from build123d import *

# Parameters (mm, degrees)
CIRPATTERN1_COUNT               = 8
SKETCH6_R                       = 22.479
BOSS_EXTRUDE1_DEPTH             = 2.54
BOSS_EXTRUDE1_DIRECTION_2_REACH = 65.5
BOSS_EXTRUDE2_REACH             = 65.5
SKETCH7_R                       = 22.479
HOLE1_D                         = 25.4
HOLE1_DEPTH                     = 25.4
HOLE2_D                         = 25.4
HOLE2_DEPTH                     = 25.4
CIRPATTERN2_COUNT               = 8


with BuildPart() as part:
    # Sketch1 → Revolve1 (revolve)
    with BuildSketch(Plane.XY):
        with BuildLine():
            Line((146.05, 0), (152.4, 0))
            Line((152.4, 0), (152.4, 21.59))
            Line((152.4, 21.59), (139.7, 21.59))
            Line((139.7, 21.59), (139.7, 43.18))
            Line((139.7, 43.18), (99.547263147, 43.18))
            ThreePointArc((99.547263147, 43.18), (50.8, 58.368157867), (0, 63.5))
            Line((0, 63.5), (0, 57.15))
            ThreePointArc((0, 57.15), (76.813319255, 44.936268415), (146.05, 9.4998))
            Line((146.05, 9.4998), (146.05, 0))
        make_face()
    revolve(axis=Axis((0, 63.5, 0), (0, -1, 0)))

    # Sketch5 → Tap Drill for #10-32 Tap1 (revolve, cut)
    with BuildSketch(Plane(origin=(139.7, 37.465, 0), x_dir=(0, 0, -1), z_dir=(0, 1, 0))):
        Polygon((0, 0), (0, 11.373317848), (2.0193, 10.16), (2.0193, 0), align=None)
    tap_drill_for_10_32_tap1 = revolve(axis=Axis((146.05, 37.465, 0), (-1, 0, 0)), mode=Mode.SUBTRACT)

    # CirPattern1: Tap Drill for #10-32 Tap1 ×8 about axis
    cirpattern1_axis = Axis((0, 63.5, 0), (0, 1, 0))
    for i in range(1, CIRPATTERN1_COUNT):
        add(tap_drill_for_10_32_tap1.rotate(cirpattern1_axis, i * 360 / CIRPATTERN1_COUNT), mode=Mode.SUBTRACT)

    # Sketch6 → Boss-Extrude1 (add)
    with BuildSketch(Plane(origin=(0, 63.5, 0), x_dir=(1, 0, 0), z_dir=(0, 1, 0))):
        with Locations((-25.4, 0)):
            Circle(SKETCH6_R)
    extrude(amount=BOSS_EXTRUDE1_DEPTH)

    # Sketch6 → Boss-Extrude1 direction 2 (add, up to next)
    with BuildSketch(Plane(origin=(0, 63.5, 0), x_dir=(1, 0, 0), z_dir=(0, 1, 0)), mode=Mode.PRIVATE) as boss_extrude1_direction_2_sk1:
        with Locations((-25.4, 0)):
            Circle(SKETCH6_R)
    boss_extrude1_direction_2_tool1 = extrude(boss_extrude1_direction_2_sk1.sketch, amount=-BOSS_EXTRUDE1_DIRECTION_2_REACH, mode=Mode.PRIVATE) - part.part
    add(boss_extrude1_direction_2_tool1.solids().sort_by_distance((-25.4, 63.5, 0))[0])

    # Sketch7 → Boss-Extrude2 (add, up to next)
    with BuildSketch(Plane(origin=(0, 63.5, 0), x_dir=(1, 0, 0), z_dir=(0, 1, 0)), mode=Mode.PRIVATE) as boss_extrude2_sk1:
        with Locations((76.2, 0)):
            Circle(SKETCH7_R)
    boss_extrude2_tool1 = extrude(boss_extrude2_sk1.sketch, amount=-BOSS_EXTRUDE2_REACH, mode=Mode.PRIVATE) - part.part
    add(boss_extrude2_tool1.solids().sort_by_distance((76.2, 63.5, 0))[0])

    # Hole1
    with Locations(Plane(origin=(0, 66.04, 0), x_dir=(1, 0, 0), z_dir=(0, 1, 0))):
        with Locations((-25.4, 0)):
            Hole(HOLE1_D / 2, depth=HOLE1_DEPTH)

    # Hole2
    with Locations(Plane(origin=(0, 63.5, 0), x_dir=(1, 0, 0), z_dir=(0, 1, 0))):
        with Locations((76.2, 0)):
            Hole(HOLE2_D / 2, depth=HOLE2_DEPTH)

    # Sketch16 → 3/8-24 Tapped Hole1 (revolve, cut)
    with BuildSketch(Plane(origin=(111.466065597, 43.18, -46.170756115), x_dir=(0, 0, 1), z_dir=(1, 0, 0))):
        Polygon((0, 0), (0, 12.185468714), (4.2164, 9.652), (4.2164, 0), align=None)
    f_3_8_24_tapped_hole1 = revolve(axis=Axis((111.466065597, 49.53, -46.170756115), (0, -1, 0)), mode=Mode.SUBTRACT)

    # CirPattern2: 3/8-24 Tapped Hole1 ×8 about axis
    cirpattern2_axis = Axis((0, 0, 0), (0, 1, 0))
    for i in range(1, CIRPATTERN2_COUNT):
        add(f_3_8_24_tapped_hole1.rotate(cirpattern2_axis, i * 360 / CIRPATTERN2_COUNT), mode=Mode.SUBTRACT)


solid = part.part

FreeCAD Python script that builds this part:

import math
import FreeCAD as App
import Part
import Sketcher
Q = App.Units.Quantity

doc = App.newDocument("Part")
params = doc.addObject("Spreadsheet::Sheet", "Params")
for row, (alias, value) in enumerate([
    ("sketch1_radius", "10 in"),
    ("sketch1_radius2", "9.75 in"),
    ("sketch1_width", "0.5 in"),
    ("sketch1_height", "0.85 in"),
    ("revolution_angle", "360 deg"),
    ("sketch2_width", "0.4 in"),
    ("groove_angle", "360 deg"),
    ("sketch3_diameter", "1.77 in"),
    ("pad1_length", "0.1 in"),
    ("sketch4_diameter", "1.77 in"),
    ("sketch5_diameter", "1.77 in"),
    ("sketch6_diameter", "1 in"),
    ("hole_diameter", "1 in"),
    ("hole_depth", "1 in"),
    ("sketch7_diameter", "1 in"),
    ("hole2_diameter", "1 in"),
    ("hole2_depth", "1 in"),
    ("sketch8_width", "0.38 in"),
    ("sketch8_height", "0.166 in"),
    ("groove2_angle", "360 deg"),
], start=1):
    params.set(f"A{row}", alias)
    params.set(f"B{row}", "=" + value)
    params.setAlias(f"B{row}", alias)

body = doc.addObject("PartDesign::Body", "Body")
body.AllowCompound = True

# Sketch on XY plane
sketch1 = doc.addObject("Sketcher::SketchObject", "Sketch")
body.addObject(sketch1)
sketch1.AttachmentSupport = (doc.XY_Plane, [""])
sketch1.MapMode = "FlatFace"
sketch1.addGeometry([
    Part.LineSegment(App.Vector(146, 0, 0), App.Vector(152, 0, 0)),  # 0
    Part.LineSegment(App.Vector(152, 0, 0), App.Vector(152, 22, 0)),  # 1
    Part.LineSegment(App.Vector(152, 22, 0), App.Vector(140, 22, 0)),  # 2
    Part.LineSegment(App.Vector(140, 22, 0), App.Vector(140, 43, 0)),  # 3
    Part.LineSegment(App.Vector(140, 43, 0), App.Vector(100, 43, 0)),  # 4
    Part.ArcOfCircle(Part.Circle(App.Vector(0, -190, 0), App.Vector(0, 0, 1), 254), math.radians(67), math.radians(90)),  # 5
    Part.LineSegment(App.Vector(0, 64, 0), App.Vector(0, 57, 0)),  # 6
    Part.ArcOfCircle(Part.Circle(App.Vector(0, -190, 0), App.Vector(0, 0, 1), 248), math.radians(54), math.radians(90)),  # 7
    Part.LineSegment(App.Vector(146, 9, 0), App.Vector(146, 0, 0)),  # 8
], False)
sketch1.addConstraint([
    Sketcher.Constraint("Coincident", 0, 2, 1, 1),
    Sketcher.Constraint("Coincident", 1, 2, 2, 1),
    Sketcher.Constraint("Coincident", 2, 2, 3, 1),
    Sketcher.Constraint("Coincident", 3, 2, 4, 1),
    Sketcher.Constraint("Coincident", 4, 2, 5, 1),
    Sketcher.Constraint("Coincident", 5, 2, 6, 1),
    Sketcher.Constraint("Coincident", 6, 2, 7, 2),
    Sketcher.Constraint("Coincident", 7, 1, 8, 1),
    Sketcher.Constraint("Coincident", 8, 2, 0, 1),
    Sketcher.Constraint("Horizontal", 0),
    Sketcher.Constraint("Vertical", 1),
    Sketcher.Constraint("Horizontal", 2),
    Sketcher.Constraint("Vertical", 3),
    Sketcher.Constraint("Horizontal", 4),
    Sketcher.Constraint("Vertical", 6),
    Sketcher.Constraint("Vertical", 8),
    Sketcher.Constraint("Coincident", 7, 3, 5, 3),
    Sketcher.Constraint("PointOnObject", 5, 3, -2),
    Sketcher.Constraint("PointOnObject", 0, 2, -1),
    Sketcher.Constraint("PointOnObject", 5, 2, -2),
    Sketcher.Constraint("Equal", 1, 3),
    Sketcher.Constraint("Equal", 0, 6),
    Sketcher.Constraint("Radius", 5, Q("10 in")),
    Sketcher.Constraint("Radius", 7, Q("9.75 in")),
    Sketcher.Constraint("DistanceX", 2, 2, 2, 1, Q("0.5 in")),
    Sketcher.Constraint("DistanceX", -1, 1, 0, 2, Q("6 in")),
    Sketcher.Constraint("DistanceY", 1, 1, 1, 2, Q("0.85 in")),
    Sketcher.Constraint("DistanceY", 5, 3, -1, 1, Q("7.5 in")),
])
sketch1.setExpression("Constraints[22]", "Params.sketch1_radius")
sketch1.setExpression("Constraints[23]", "Params.sketch1_radius2")
sketch1.setExpression("Constraints[24]", "Params.sketch1_width")
sketch1.setExpression("Constraints[26]", "Params.sketch1_height")
revolution = doc.addObject("PartDesign::Revolution", "Revolution")
body.addObject(revolution)
revolution.Profile = sketch1
revolution.ReferenceAxis = (sketch1, ["V_Axis"])
revolution.setExpression("Angle", "Params.revolution_angle")

# Sketch on XZ plane
sketch2 = doc.addObject("Sketcher::SketchObject", "Sketch001")
body.addObject(sketch2)
sketch2.AttachmentSupport = (doc.XZ_Plane, [""])
sketch2.MapMode = "FlatFace"
sketch2.AttachmentOffset = App.Placement(App.Vector(0, 0, -1.475 * 25.4), App.Rotation())
sketch2.addGeometry([
    Part.LineSegment(App.Vector(128.3, 0, 0), App.Vector(139.7, 0, 0)),
    Part.LineSegment(App.Vector(139.7, 0, 0), App.Vector(139.7, -2, 0)),
    Part.LineSegment(App.Vector(139.7, -2, 0), App.Vector(129.5, -2, 0)),
    Part.LineSegment(App.Vector(129.5, -2, 0), App.Vector(128.3, 0, 0)),
], False)
sketch2.addConstraint([
    Sketcher.Constraint("Coincident", 0, 2, 1, 1),
    Sketcher.Constraint("Coincident", 1, 2, 2, 1),
    Sketcher.Constraint("Coincident", 2, 2, 3, 1),
    Sketcher.Constraint("Coincident", 3, 2, 0, 1),
    Sketcher.Constraint("Horizontal", 0),
    Sketcher.Constraint("Vertical", 1),
    Sketcher.Constraint("Horizontal", 2),
    Sketcher.Constraint("PointOnObject", 0, 2, -1),
    Sketcher.Constraint("DistanceX", 2, 2, 2, 1, Q("0.4 in")),
    Sketcher.Constraint("Angle", 3, Q("121 deg")),
    Sketcher.Constraint("DistanceX", -1, 1, 0, 2, Q("5.5 in")),
    Sketcher.Constraint("DistanceY", 1, 2, 1, 1, Q("0.0795 in")),
])
sketch2.setExpression("Constraints[8]", "Params.sketch2_width")
groove = doc.addObject("PartDesign::Groove", "Groove")
body.addObject(groove)
groove.Profile = sketch2
groove.ReferenceAxis = (sketch2, ["H_Axis"])
groove.setExpression("Angle", "Params.groove_angle")
doc.recompute()

polarpattern = doc.addObject("PartDesign::PolarPattern", "PolarPattern")
body.addObject(polarpattern)
polarpattern.Originals = [groove]
polarpattern.Axis = (doc.Y_Axis, [""])
polarpattern.Angle = 360
polarpattern.Occurrences = 8
body.Tip = polarpattern

# Sketch on XZ plane
sketch3 = doc.addObject("Sketcher::SketchObject", "Sketch002")
body.addObject(sketch3)
sketch3.AttachmentSupport = (doc.XZ_Plane, [""])
sketch3.MapMode = "FlatFace"
sketch3.AttachmentOffset = App.Placement(App.Vector(0, 0, -2.5 * 25.4), App.Rotation())
sketch3.addGeometry(Part.Circle(App.Vector(-25, 0, 0), App.Vector(0, 0, 1), 22), False)
sketch3.addConstraint([
    Sketcher.Constraint("PointOnObject", 0, 3, -1),
    Sketcher.Constraint("Diameter", 0, Q("1.77 in")),
    Sketcher.Constraint("DistanceX", 0, 3, -1, 1, Q("1 in")),
])
sketch3.setExpression("Constraints[1]", "Params.sketch3_diameter")
pad1 = doc.addObject("PartDesign::Pad", "Pad")
body.addObject(pad1)
pad1.Profile = sketch3
pad1.setExpression("Length", "Params.pad1_length")
pad1.Reversed = True

# Sketch on XZ plane
sketch4 = doc.addObject("Sketcher::SketchObject", "Sketch003")
body.addObject(sketch4)
sketch4.AttachmentSupport = (doc.XZ_Plane, [""])
sketch4.MapMode = "FlatFace"
sketch4.AttachmentOffset = App.Placement(App.Vector(0, 0, -2.5 * 25.4), App.Rotation())
sketch4.addGeometry(Part.Circle(App.Vector(-25, 0, 0), App.Vector(0, 0, 1), 22), False)
sketch4.addConstraint([
    Sketcher.Constraint("PointOnObject", 0, 3, -1),
    Sketcher.Constraint("Diameter", 0, Q("1.77 in")),
    Sketcher.Constraint("DistanceX", 0, 3, -1, 1, Q("1 in")),
])
sketch4.setExpression("Constraints[1]", "Params.sketch4_diameter")
pad2 = doc.addObject("PartDesign::Pad", "Pad001")
body.addObject(pad2)
pad2.Profile = sketch4
pad2.Type = "UpToFirst"

# Sketch on XZ plane
sketch5 = doc.addObject("Sketcher::SketchObject", "Sketch004")
body.addObject(sketch5)
sketch5.AttachmentSupport = (doc.XZ_Plane, [""])
sketch5.MapMode = "FlatFace"
sketch5.AttachmentOffset = App.Placement(App.Vector(0, 0, -2.5 * 25.4), App.Rotation())
sketch5.addGeometry(Part.Circle(App.Vector(76, 0, 0), App.Vector(0, 0, 1), 22), False)
sketch5.addConstraint([
    Sketcher.Constraint("PointOnObject", 0, 3, -1),
    Sketcher.Constraint("Diameter", 0, Q("1.77 in")),
    Sketcher.Constraint("DistanceX", -1, 1, 0, 3, Q("3 in")),
])
sketch5.setExpression("Constraints[1]", "Params.sketch5_diameter")
pad3 = doc.addObject("PartDesign::Pad", "Pad002")
body.addObject(pad3)
pad3.Profile = sketch5
pad3.Type = "UpToFirst"

# Sketch on XZ plane
sketch6 = doc.addObject("Sketcher::SketchObject", "Sketch005")
body.addObject(sketch6)
sketch6.AttachmentSupport = (doc.XZ_Plane, [""])
sketch6.MapMode = "FlatFace"
sketch6.AttachmentOffset = App.Placement(App.Vector(0, 0, -2.6 * 25.4), App.Rotation())
sketch6.addGeometry(Part.Circle(App.Vector(-25, 0, 0), App.Vector(0, 0, 1), 13), False)
sketch6.addConstraint([
    Sketcher.Constraint("PointOnObject", 0, 3, -1),
    Sketcher.Constraint("Diameter", 0, Q("1 in")),
    Sketcher.Constraint("DistanceX", 0, 3, -1, 1, Q("1 in")),
])
sketch6.setExpression("Constraints[1]", "Params.sketch6_diameter")
doc.recompute()
hole = doc.addObject("PartDesign::Hole", "Hole")
body.addObject(hole)
hole.Profile = sketch6
hole.ThreadType = "None"
hole.setExpression("Diameter", "Params.hole_diameter")
hole.DepthType = "Dimension"
hole.setExpression("Depth", "Params.hole_depth")
hole.DrillPoint = "Flat"
hole.Reversed = True

# Sketch on XZ plane
sketch7 = doc.addObject("Sketcher::SketchObject", "Sketch006")
body.addObject(sketch7)
sketch7.AttachmentSupport = (doc.XZ_Plane, [""])
sketch7.MapMode = "FlatFace"
sketch7.AttachmentOffset = App.Placement(App.Vector(0, 0, -2.5 * 25.4), App.Rotation())
sketch7.addGeometry(Part.Circle(App.Vector(76, 0, 0), App.Vector(0, 0, 1), 13), False)
sketch7.addConstraint([
    Sketcher.Constraint("PointOnObject", 0, 3, -1),
    Sketcher.Constraint("Diameter", 0, Q("1 in")),
    Sketcher.Constraint("DistanceX", -1, 1, 0, 3, Q("3 in")),
])
sketch7.setExpression("Constraints[1]", "Params.sketch7_diameter")
doc.recompute()
hole2 = doc.addObject("PartDesign::Hole", "Hole001")
body.addObject(hole2)
hole2.Profile = sketch7
hole2.ThreadType = "None"
hole2.setExpression("Diameter", "Params.hole2_diameter")
hole2.DepthType = "Dimension"
hole2.setExpression("Depth", "Params.hole2_depth")
hole2.DrillPoint = "Flat"
hole2.Reversed = True

# Sketch on YZ plane
sketch8 = doc.addObject("Sketcher::SketchObject", "Sketch007")
body.addObject(sketch8)
sketch8.AttachmentSupport = (doc.YZ_Plane, [""])
sketch8.MapMode = "FlatFace"
sketch8.AttachmentOffset = App.Placement(App.Vector(0, 0, 111.466066), App.Rotation())
sketch8.addGeometry([
    Part.LineSegment(App.Vector(31, -46.2, 0), App.Vector(43.2, -46.2, 0)),
    Part.LineSegment(App.Vector(43.2, -46.2, 0), App.Vector(43.2, -42, 0)),
    Part.LineSegment(App.Vector(43.2, -42, 0), App.Vector(33.5, -42, 0)),
    Part.LineSegment(App.Vector(33.5, -42, 0), App.Vector(31, -46.2, 0)),
], False)
sketch8.addGeometry(Part.LineSegment(App.Vector(43.2, -46.2, 0), App.Vector(31, -46.2, 0)), True)  # axis
sketch8.addConstraint([
    Sketcher.Constraint("Coincident", 0, 2, 1, 1),
    Sketcher.Constraint("Coincident", 1, 2, 2, 1),
    Sketcher.Constraint("Coincident", 2, 2, 3, 1),
    Sketcher.Constraint("Coincident", 3, 2, 0, 1),
    Sketcher.Constraint("Horizontal", 0),
    Sketcher.Constraint("Vertical", 1),
    Sketcher.Constraint("Horizontal", 2),
    Sketcher.Constraint("Horizontal", 4),
    Sketcher.Constraint("Coincident", 4, 1, 0, 2),
    Sketcher.Constraint("Equal", 0, 4),
    Sketcher.Constraint("Angle", 3, Q("-121 deg")),
    Sketcher.Constraint("DistanceX", 2, 2, 2, 1, Q("0.38 in")),
    Sketcher.Constraint("DistanceX", -1, 1, 0, 2, Q("1.7 in")),
    Sketcher.Constraint("DistanceY", 1, 1, 1, 2, Q("0.166 in")),
    Sketcher.Constraint("DistanceY", 0, 2, -1, 1, Q("46.170756 mm")),
])
sketch8.setExpression("Constraints[11]", "Params.sketch8_width")
sketch8.setExpression("Constraints[13]", "Params.sketch8_height")
groove2 = doc.addObject("PartDesign::Groove", "Groove001")
body.addObject(groove2)
groove2.Profile = sketch8
groove2.ReferenceAxis = (sketch8, ["Axis0"])
groove2.setExpression("Angle", "Params.groove2_angle")
doc.recompute()

polarpattern2 = doc.addObject("PartDesign::PolarPattern", "PolarPattern001")
body.addObject(polarpattern2)
polarpattern2.Originals = [groove2]
polarpattern2.Axis = (doc.Y_Axis, [""])
polarpattern2.Angle = 360
polarpattern2.Occurrences = 8
body.Tip = polarpattern2

doc.recompute()
